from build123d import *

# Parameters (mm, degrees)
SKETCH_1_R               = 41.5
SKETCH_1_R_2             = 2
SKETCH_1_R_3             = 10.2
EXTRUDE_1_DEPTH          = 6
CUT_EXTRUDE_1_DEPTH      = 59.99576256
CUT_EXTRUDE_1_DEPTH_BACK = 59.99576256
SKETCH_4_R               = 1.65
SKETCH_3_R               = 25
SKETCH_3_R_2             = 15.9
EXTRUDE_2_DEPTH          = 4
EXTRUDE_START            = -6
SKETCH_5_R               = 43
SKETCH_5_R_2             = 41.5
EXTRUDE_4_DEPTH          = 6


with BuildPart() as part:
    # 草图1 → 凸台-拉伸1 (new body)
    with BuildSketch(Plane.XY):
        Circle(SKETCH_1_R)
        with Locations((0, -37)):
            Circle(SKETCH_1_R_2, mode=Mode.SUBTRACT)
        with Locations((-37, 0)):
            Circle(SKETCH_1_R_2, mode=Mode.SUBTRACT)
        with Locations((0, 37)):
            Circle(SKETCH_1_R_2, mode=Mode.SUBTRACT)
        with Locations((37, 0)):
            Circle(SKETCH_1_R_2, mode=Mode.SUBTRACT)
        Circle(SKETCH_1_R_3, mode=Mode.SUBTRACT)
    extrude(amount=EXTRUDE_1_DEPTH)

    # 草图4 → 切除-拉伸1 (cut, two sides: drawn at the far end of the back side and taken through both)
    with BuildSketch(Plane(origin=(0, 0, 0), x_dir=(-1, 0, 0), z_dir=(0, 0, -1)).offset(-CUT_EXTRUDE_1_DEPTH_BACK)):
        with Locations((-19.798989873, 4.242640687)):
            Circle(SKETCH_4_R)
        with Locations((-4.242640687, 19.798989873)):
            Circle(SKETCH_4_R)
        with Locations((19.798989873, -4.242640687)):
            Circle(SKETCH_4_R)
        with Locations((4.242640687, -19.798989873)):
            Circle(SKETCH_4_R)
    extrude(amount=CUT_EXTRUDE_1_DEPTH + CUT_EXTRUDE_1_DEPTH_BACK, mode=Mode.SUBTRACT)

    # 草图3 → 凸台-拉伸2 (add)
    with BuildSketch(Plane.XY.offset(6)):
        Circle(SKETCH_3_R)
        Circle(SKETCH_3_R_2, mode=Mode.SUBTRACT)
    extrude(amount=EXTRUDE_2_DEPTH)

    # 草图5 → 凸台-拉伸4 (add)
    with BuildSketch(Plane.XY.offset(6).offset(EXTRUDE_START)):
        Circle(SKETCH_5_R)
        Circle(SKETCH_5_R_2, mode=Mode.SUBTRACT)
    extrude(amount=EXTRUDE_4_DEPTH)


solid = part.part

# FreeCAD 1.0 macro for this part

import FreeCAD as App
import Part
import Sketcher

doc = App.newDocument("Part")
body = doc.addObject("PartDesign::Body", "Body")

# Sketch on XY plane
sketch1 = body.newObject("Sketcher::SketchObject", "Sketch")
sketch1.AttachmentSupport = (doc.getObject("XY_Plane"), [""])
sketch1.MapMode = "FlatFace"
sketch1.addGeometry([
    Part.Circle(App.Vector(0, 0, 0), App.Vector(0, 0, 1), 41.5),  # 0
    Part.Circle(App.Vector(0, -37, 0), App.Vector(0, 0, 1), 2),  # 1
    Part.Circle(App.Vector(-37, 0, 0), App.Vector(0, 0, 1), 2),  # 2
    Part.Circle(App.Vector(0, 0, 0), App.Vector(0, 0, 1), 10.2),  # 3
    Part.Circle(App.Vector(37, 0, 0), App.Vector(0, 0, 1), 2),  # 4
    Part.Circle(App.Vector(0, 37, 0), App.Vector(0, 0, 1), 2),  # 5
], False)
sketch1.addConstraint([
    Sketcher.Constraint("Coincident", 0, 3, -1, 1),
    Sketcher.Constraint("Coincident", 3, 3, -1, 1),
    Sketcher.Constraint("Equal", 1, 2),
    Sketcher.Constraint("Equal", 2, 4),
    Sketcher.Constraint("Equal", 4, 5),
    Sketcher.Constraint("Symmetric", 2, 3, 4, 3, -1, 1),
    Sketcher.Constraint("Symmetric", 1, 3, 5, 3, -1, 1),
    Sketcher.Constraint("PointOnObject", 1, 3, -2),
    Sketcher.Constraint("PointOnObject", 2, 3, -1),
    Sketcher.Constraint("Diameter", 0, 83.0),
    Sketcher.Constraint("Diameter", 1, 4.0),
    Sketcher.Constraint("Diameter", 3, 20.4),
    Sketcher.Constraint("DistanceY", 1, 3, -1, 1, 37.0),
    Sketcher.Constraint("DistanceX", 2, 3, -1, 1, 37.0),
])
pad1 = body.newObject("PartDesign::Pad", "Pad")
pad1.Profile = sketch1
pad1.Length = 6

# Sketch on XY plane
sketch2 = body.newObject("Sketcher::SketchObject", "Sketch001")
sketch2.AttachmentSupport = (doc.getObject("XY_Plane"), [""])
sketch2.MapMode = "FlatFace"
sketch2.addGeometry([
    Part.Circle(App.Vector(19.79899, 4.242641, 0), App.Vector(0, 0, 1), 1.65),
    Part.Circle(App.Vector(4.242641, 19.79899, 0), App.Vector(0, 0, 1), 1.65),
    Part.Circle(App.Vector(-19.79899, -4.242641, 0), App.Vector(0, 0, 1), 1.65),
    Part.Circle(App.Vector(-4.242641, -19.79899, 0), App.Vector(0, 0, 1), 1.65),
], False)
sketch2.addConstraint([
    Sketcher.Constraint("Equal", 0, 1),
    Sketcher.Constraint("Equal", 1, 2),
    Sketcher.Constraint("Equal", 2, 3),
    Sketcher.Constraint("Symmetric", 0, 3, 2, 3, -1, 1),
    Sketcher.Constraint("Symmetric", 1, 3, 3, 3, -1, 1),
    Sketcher.Constraint("Diameter", 0, 3.3),
    Sketcher.Constraint("DistanceX", -1, 1, 0, 3, 19.79899),
    Sketcher.Constraint("DistanceY", -1, 1, 0, 3, 4.242641),
    Sketcher.Constraint("DistanceX", -1, 1, 1, 3, 4.242641),
    Sketcher.Constraint("DistanceY", -1, 1, 1, 3, 19.79899),
])
pocket1 = body.newObject("PartDesign::Pocket", "Pocket")
pocket1.Profile = sketch2
pocket1.Type = "ThroughAll"
pocket1.Midplane = True

# Sketch on XY plane
sketch3 = body.newObject("Sketcher::SketchObject", "Sketch002")
sketch3.AttachmentSupport = (doc.getObject("XY_Plane"), [""])
sketch3.MapMode = "FlatFace"
sketch3.AttachmentOffset = App.Placement(App.Vector(0, 0, 6), App.Rotation())
sketch3.addGeometry([
    Part.Circle(App.Vector(0, 0, 0), App.Vector(0, 0, 1), 25),
    Part.Circle(App.Vector(0, 0, 0), App.Vector(0, 0, 1), 15.9),
], False)
sketch3.addConstraint([
    Sketcher.Constraint("Coincident", 0, 3, -1, 1),
    Sketcher.Constraint("Coincident", 1, 3, -1, 1),
    Sketcher.Constraint("Diameter", 0, 50.0),
    Sketcher.Constraint("Diameter", 1, 31.8),
])
pad2 = body.newObject("PartDesign::Pad", "Pad001")
pad2.Profile = sketch3
pad2.Length = 4

# Sketch on XY plane
sketch4 = body.newObject("Sketcher::SketchObject", "Sketch003")
sketch4.AttachmentSupport = (doc.getObject("XY_Plane"), [""])
sketch4.MapMode = "FlatFace"
sketch4.addGeometry([
    Part.Circle(App.Vector(0, 0, 0), App.Vector(0, 0, 1), 43),
    Part.Circle(App.Vector(0, 0, 0), App.Vector(0, 0, 1), 41.5),
], False)
sketch4.addConstraint([
    Sketcher.Constraint("Coincident", 0, 3, -1, 1),
    Sketcher.Constraint("Coincident", 1, 3, -1, 1),
    Sketcher.Constraint("Diameter", 0, 86.0),
    Sketcher.Constraint("Diameter", 1, 83.0),
])
pad3 = body.newObject("PartDesign::Pad", "Pad002")
pad3.Profile = sketch4
pad3.Length = 6

doc.recompute()
